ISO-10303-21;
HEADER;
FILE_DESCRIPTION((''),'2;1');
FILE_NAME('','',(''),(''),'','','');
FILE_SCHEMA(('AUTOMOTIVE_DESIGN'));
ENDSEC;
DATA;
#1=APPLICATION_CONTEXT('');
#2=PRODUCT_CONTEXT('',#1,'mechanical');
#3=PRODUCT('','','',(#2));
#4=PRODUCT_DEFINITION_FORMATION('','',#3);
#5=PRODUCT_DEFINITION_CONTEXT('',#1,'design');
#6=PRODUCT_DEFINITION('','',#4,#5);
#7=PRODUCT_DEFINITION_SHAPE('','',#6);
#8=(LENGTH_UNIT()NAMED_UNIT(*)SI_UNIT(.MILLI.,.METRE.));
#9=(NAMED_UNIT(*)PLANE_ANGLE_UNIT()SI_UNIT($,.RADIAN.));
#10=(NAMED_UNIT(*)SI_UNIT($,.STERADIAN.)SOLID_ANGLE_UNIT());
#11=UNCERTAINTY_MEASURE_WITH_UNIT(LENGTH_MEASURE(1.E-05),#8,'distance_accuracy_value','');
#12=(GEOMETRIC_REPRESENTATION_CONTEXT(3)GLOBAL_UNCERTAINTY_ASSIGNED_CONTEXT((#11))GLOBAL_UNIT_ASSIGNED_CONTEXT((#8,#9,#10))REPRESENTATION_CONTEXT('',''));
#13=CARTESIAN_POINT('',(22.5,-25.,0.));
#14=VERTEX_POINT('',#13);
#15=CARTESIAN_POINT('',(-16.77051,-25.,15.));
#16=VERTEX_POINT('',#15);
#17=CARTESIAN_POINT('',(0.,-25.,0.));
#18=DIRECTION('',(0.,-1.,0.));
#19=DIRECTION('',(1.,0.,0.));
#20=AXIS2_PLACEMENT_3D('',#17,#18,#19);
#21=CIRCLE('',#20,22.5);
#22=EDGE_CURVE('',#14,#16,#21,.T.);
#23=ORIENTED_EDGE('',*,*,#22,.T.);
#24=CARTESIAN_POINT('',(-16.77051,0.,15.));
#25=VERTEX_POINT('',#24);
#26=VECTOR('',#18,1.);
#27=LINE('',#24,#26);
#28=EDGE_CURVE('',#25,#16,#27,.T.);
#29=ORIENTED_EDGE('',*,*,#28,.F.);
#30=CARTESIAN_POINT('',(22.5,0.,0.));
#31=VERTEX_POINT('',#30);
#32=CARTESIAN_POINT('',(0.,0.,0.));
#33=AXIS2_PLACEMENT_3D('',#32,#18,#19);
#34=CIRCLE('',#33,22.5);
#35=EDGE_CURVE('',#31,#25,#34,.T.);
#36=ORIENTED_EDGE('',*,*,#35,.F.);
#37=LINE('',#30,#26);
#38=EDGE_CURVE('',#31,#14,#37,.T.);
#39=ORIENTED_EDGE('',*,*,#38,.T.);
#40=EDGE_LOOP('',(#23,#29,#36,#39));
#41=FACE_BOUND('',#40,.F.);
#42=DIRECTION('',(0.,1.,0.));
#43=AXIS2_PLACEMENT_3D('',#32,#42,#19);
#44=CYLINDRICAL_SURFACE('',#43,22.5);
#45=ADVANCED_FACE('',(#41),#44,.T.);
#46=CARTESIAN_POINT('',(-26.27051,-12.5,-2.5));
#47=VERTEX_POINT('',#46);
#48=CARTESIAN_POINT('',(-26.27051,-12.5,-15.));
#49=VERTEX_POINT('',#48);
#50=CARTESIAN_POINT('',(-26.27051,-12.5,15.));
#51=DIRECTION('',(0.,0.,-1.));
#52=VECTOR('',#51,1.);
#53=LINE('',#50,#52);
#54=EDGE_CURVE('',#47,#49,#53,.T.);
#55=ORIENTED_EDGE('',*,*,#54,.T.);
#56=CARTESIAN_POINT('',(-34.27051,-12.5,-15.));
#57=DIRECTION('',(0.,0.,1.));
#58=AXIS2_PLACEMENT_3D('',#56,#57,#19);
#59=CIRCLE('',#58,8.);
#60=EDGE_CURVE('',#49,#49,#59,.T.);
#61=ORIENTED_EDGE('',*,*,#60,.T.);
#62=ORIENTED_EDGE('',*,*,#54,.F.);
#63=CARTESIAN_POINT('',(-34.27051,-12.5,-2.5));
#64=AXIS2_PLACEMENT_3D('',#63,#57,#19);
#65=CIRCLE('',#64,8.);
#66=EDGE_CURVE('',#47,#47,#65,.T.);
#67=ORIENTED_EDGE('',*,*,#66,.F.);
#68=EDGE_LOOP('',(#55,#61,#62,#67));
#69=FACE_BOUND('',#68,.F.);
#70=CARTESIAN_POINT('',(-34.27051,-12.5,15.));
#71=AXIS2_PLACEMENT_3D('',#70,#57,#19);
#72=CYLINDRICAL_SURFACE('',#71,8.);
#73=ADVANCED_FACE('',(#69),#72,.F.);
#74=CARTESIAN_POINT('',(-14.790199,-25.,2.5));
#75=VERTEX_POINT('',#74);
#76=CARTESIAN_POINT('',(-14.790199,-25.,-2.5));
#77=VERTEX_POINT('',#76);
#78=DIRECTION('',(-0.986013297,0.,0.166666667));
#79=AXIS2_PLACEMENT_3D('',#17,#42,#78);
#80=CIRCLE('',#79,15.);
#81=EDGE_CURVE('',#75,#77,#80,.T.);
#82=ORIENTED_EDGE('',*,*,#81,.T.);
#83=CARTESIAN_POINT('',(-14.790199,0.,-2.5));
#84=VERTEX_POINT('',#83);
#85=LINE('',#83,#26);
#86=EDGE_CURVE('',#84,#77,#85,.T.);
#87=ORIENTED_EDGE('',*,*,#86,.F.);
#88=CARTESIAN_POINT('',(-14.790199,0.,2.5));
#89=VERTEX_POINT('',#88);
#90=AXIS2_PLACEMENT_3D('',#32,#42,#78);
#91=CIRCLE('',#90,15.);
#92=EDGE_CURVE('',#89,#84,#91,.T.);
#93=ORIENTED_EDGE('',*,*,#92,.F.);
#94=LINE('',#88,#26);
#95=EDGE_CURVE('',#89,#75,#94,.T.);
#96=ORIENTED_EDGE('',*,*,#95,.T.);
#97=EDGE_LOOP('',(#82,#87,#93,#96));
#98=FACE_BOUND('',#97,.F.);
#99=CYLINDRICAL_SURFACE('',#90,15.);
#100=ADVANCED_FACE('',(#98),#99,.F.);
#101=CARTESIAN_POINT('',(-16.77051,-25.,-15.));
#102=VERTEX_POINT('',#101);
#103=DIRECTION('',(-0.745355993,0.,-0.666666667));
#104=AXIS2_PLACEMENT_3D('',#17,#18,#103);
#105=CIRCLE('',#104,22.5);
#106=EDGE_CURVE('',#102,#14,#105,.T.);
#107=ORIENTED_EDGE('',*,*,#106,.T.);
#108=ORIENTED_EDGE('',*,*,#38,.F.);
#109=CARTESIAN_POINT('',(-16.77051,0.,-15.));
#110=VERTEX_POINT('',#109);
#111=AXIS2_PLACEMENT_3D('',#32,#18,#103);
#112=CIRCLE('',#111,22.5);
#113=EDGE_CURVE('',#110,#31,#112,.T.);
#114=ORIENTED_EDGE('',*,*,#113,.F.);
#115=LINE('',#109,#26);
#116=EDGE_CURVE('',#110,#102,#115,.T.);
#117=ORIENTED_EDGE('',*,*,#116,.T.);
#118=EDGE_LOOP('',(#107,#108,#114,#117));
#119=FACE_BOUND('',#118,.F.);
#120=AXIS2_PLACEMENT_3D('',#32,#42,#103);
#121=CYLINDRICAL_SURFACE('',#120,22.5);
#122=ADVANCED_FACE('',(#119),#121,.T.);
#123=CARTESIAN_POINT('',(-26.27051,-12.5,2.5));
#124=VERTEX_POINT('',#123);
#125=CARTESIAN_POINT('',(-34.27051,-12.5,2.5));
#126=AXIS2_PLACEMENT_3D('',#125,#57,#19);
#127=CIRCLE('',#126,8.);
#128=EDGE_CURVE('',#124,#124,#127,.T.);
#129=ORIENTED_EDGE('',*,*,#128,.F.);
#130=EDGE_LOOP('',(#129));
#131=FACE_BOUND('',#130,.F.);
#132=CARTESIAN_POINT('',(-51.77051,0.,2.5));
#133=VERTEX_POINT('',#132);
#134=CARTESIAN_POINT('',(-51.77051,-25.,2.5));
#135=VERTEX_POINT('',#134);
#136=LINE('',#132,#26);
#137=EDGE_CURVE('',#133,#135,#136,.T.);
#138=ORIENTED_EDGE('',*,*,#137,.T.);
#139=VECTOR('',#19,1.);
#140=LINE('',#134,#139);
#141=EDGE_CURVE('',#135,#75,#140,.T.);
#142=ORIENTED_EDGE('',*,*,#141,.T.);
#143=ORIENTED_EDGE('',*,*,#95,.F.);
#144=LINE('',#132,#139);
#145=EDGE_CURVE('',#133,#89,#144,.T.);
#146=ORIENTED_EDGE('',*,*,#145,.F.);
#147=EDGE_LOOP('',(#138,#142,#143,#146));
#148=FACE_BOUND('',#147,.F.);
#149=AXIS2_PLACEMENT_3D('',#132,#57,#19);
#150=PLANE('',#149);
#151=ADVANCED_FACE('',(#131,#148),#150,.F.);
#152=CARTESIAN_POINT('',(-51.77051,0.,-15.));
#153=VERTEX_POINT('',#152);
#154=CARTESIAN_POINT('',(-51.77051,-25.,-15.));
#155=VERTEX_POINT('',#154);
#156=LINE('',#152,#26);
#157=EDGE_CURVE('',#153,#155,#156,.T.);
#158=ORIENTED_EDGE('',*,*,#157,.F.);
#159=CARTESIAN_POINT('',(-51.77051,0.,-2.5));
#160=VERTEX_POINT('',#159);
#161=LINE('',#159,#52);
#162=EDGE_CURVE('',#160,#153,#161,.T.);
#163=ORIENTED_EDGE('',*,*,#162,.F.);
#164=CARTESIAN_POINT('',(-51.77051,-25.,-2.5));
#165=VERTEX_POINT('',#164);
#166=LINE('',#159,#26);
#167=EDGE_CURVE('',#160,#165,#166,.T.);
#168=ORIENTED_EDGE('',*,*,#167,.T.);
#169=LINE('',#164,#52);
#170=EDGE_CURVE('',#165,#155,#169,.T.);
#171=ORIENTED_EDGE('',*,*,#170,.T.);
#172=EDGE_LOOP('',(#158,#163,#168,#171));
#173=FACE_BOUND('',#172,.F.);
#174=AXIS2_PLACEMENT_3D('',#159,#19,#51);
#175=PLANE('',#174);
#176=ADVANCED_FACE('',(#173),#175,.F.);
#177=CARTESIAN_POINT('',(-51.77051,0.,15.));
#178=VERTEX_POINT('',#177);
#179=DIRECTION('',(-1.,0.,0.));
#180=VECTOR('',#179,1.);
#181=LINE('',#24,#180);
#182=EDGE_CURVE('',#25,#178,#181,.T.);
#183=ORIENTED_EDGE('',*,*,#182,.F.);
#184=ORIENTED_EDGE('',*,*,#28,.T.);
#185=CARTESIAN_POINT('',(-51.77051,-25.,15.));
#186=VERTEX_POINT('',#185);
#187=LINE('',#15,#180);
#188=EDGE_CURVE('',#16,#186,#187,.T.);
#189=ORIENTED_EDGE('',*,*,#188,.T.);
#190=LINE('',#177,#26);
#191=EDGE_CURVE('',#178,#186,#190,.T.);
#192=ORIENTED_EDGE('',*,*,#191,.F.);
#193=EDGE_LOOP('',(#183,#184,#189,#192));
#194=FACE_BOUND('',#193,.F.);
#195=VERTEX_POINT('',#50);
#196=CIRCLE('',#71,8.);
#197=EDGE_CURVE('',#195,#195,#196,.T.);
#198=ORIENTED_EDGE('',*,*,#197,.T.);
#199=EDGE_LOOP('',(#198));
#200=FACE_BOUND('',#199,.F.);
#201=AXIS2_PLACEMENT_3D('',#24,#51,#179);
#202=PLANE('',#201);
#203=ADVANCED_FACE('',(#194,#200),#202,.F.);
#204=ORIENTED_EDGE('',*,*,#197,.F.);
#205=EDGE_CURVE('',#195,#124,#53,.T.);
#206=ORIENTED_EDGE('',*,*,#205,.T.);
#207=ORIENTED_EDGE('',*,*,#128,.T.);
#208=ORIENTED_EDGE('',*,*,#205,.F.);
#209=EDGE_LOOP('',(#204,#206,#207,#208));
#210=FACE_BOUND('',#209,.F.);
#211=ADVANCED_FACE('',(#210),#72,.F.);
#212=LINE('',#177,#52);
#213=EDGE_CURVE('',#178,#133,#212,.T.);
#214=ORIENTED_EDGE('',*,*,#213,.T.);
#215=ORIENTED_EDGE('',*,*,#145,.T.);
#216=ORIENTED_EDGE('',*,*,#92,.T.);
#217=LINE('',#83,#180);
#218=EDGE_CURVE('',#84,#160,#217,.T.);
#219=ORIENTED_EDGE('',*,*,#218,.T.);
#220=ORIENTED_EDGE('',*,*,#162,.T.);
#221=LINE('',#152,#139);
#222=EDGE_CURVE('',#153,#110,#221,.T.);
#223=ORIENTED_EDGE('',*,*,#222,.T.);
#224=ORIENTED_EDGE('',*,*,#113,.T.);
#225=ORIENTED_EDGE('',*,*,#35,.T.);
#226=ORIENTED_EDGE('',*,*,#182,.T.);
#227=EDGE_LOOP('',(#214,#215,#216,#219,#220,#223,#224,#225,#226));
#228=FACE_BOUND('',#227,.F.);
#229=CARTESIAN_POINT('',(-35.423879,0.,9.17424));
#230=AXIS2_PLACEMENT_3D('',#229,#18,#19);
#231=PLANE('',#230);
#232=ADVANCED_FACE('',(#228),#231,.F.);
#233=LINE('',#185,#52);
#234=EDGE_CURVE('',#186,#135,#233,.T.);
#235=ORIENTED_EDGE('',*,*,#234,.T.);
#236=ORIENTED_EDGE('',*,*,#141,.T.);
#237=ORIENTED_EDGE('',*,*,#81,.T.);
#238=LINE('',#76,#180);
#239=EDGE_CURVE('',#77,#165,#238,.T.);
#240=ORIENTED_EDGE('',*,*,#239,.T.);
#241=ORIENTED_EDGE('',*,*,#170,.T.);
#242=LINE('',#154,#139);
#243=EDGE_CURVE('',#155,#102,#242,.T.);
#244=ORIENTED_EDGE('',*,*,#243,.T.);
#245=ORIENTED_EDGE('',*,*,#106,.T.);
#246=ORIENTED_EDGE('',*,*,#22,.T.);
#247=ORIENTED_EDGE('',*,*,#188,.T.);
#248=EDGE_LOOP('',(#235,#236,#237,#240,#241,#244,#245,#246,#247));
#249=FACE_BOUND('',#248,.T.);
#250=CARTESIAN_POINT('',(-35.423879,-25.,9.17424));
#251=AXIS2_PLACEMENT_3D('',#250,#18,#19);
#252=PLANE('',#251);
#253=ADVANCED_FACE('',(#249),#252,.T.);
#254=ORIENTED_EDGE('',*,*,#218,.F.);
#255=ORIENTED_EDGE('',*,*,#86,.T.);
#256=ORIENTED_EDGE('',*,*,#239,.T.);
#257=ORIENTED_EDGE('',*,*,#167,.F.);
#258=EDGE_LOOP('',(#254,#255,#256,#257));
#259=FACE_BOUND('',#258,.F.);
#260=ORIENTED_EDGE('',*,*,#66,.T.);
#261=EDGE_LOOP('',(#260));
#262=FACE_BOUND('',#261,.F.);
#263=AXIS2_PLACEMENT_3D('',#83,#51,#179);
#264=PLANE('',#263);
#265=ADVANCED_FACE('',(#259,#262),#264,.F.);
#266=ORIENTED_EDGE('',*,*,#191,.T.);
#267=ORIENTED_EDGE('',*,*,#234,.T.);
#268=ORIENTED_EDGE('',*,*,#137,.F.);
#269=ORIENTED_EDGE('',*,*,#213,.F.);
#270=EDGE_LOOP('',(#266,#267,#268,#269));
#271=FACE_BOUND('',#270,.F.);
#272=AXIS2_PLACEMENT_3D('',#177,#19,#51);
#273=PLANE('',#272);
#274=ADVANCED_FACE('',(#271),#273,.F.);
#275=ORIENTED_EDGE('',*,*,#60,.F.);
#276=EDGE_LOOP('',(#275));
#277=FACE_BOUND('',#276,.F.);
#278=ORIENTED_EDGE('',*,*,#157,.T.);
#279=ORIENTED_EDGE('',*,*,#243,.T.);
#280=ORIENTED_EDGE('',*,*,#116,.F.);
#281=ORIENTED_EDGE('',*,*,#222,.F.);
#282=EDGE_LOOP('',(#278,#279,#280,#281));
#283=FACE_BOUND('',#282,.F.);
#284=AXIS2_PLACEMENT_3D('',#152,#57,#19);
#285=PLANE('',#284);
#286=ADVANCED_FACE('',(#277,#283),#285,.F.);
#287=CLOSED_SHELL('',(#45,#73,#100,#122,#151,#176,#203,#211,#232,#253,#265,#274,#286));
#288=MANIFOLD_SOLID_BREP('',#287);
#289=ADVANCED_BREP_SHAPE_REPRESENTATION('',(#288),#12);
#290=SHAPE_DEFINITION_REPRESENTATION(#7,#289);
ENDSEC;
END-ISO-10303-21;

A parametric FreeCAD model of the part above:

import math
import FreeCAD as App
import Part
import Sketcher

V = App.Vector

doc = App.newDocument("Part")
body = doc.addObject("PartDesign::Body", "Body")

# Sketch on XZ plane
sketch1 = body.newObject("Sketcher::SketchObject", "Sketch")
sketch1.AttachmentSupport = (doc.getObject("XZ_Plane"), [""])
sketch1.MapMode = "FlatFace"
sketch1.addGeometry([
    Part.LineSegment(V(-52, 2, 0), V(-15, 2, 0)),  # 0
    Part.ArcOfCircle(Part.Circle(V(0, 0, 0), V(0, 0, 1), 15), math.radians(-170), math.radians(170)),  # 1
    Part.LineSegment(V(-15, -2, 0), V(-52, -2, 0)),  # 2
    Part.LineSegment(V(-52, -2, 0), V(-52, -15, 0)),  # 3
    Part.LineSegment(V(-52, -15, 0), V(-17, -15, 0)),  # 4
    Part.ArcOfCircle(Part.Circle(V(0, 0, 0), V(0, 0, 1), 22), math.radians(-138), math.radians(0)),  # 5
    Part.ArcOfCircle(Part.Circle(V(0, 0, 0), V(0, 0, 1), 22), math.radians(0), math.radians(138)),  # 6
    Part.LineSegment(V(-17, 15, 0), V(-52, 15, 0)),  # 7
    Part.LineSegment(V(-52, 15, 0), V(-52, 2, 0)),  # 8
], False)
sketch1.addConstraint([
    Sketcher.Constraint("Coincident", 0, 2, 1, 2),
    Sketcher.Constraint("Coincident", 1, 1, 2, 1),
    Sketcher.Constraint("Coincident", 2, 2, 3, 1),
    Sketcher.Constraint("Coincident", 3, 2, 4, 1),
    Sketcher.Constraint("Coincident", 4, 2, 5, 1),
    Sketcher.Constraint("Tangent", 5, 2, 6, 1),
    Sketcher.Constraint("Coincident", 6, 2, 7, 1),
    Sketcher.Constraint("Coincident", 7, 2, 8, 1),
    Sketcher.Constraint("Coincident", 8, 2, 0, 1),
    Sketcher.Constraint("Horizontal", 0),
    Sketcher.Constraint("Horizontal", 2),
    Sketcher.Constraint("Vertical", 3),
    Sketcher.Constraint("Horizontal", 4),
    Sketcher.Constraint("Horizontal", 7),
    Sketcher.Constraint("Vertical", 8),
    Sketcher.Constraint("Coincident", 1, 3, -1, 1),
    Sketcher.Constraint("Coincident", 5, 3, -1, 1),
    Sketcher.Constraint("Equal", 5, 6),
    Sketcher.Constraint("Symmetric", 3, 2, 7, 2, -1),
    Sketcher.Constraint("PointOnObject", 5, 2, -1),
    Sketcher.Constraint("Vertical", 0, 2, 1, 1),
    Sketcher.Constraint("Radius", 1, 15.0),
    Sketcher.Constraint("Radius", 5, 22.5),
    Sketcher.Constraint("DistanceX", 4, 1, 4, 2, 35.0),
    Sketcher.Constraint("DistanceY", 3, 2, 3, 1, 12.5),
    Sketcher.Constraint("DistanceY", 3, 2, -1, 1, 15.0),
])
pad1 = body.newObject("PartDesign::Pad", "Pad")
pad1.Profile = sketch1
pad1.Length = 25

# Sketch on XY plane
sketch2 = body.newObject("Sketcher::SketchObject", "Sketch001")
sketch2.AttachmentSupport = (doc.getObject("XY_Plane"), [""])
sketch2.MapMode = "FlatFace"
sketch2.AttachmentOffset = App.Placement(V(0, 0, 15), App.Rotation())
sketch2.addGeometry(Part.Circle(V(-34, -12, 0), V(0, 0, 1), 8), False)
sketch2.addConstraint([
    Sketcher.Constraint("Diameter", 0, 16.0),
    Sketcher.Constraint("DistanceY", 0, 3, -1, 1, 12.5),
    Sketcher.Constraint("DistanceX", 0, 3, -1, 1, 34.27051),
])
pocket1 = body.newObject("PartDesign::Pocket", "Pocket")
pocket1.Profile = sketch2
pocket1.Type = "ThroughAll"

doc.recompute()
